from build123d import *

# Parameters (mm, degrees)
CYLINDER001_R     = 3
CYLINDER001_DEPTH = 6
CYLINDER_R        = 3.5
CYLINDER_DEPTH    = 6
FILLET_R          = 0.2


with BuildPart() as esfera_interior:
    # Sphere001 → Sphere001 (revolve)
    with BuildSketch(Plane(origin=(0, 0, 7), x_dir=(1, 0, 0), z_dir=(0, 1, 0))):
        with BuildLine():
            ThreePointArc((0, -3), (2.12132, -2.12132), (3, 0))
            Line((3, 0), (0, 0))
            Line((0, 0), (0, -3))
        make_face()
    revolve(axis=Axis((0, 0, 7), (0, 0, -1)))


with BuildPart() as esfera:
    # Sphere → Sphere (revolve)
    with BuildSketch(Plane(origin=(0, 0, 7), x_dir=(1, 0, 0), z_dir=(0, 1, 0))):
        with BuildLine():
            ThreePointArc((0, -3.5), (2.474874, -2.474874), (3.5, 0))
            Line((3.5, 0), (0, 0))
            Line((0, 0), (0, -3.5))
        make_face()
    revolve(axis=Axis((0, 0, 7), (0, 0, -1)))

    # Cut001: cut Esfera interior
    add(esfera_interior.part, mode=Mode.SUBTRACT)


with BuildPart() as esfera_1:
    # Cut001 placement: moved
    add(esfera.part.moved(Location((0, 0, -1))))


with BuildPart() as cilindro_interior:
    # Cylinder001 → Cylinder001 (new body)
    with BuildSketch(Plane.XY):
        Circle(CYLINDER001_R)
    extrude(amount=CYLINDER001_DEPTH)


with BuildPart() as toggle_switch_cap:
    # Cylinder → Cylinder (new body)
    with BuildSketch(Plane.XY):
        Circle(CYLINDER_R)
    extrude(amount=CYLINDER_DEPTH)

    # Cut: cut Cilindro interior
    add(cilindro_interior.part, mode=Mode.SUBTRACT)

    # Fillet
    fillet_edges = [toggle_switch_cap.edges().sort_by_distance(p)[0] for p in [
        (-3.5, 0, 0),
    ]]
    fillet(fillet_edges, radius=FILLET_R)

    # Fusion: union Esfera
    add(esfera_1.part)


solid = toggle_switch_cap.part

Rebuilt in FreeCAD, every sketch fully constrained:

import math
import FreeCAD as App
import Part
import Sketcher

V = App.Vector
Q = App.Units.Quantity


def edges_at(feature, points):
    """Names of the edges that pass closest to the given points."""
    edges = feature.Shape.Edges
    near = lambda p: min(range(len(edges)), key=lambda i: edges[i].distToShape(Part.Vertex(*p))[0])
    return sorted({f"Edge{near(p) + 1}" for p in points})

doc = App.newDocument("Part")
body = doc.addObject("PartDesign::Body", "Body")

# Sketch on XZ plane
sketch1 = body.newObject("Sketcher::SketchObject", "Sketch")
sketch1.AttachmentSupport = (doc.getObject("XZ_Plane"), [""])
sketch1.MapMode = "FlatFace"
sketch1.addGeometry(Part.ArcOfCircle(Part.Circle(V(0, 7, 0), V(0, 0, 1), 3), math.radians(0), math.radians(90)), False)
sketch1.addGeometry(Part.LineSegment(V(3, 7, 0), V(0, 7, 0)), False)
sketch1.addGeometry(Part.LineSegment(V(0, 7, 0), V(0, 10, 0)), False)
sketch1.addConstraint(Sketcher.Constraint("Coincident", 0, 1, 1, 1))
sketch1.addConstraint(Sketcher.Constraint("Coincident", 1, 2, 2, 1))
sketch1.addConstraint(Sketcher.Constraint("Coincident", 2, 2, 0, 2))
sketch1.addConstraint(Sketcher.Constraint("Horizontal", 1))
sketch1.addConstraint(Sketcher.Constraint("Vertical", 2))
sketch1.addConstraint(Sketcher.Constraint("Coincident", 1, 2, 0, 3))
sketch1.addConstraint(Sketcher.Constraint("PointOnObject", 0, 3, -2))
sketch1.addConstraint(Sketcher.Constraint("Radius", 0, Q("3.000001 mm")))
sketch1.addConstraint(Sketcher.Constraint("DistanceY", -1, 1, 0, 3, Q("6.999999 mm")))
revolution = body.newObject("PartDesign::Revolution", "Revolution")
revolution.Profile = sketch1
revolution.ReferenceAxis = (sketch1, ["V_Axis"])
revolution.Angle = 360
body2 = doc.addObject("PartDesign::Body", "Body001")

# Sketch on XZ plane
sketch2 = body2.newObject("Sketcher::SketchObject", "Sketch001")
sketch2.AttachmentSupport = (doc.getObject("XZ_Plane001"), [""])
sketch2.MapMode = "FlatFace"
sketch2.addGeometry(Part.ArcOfCircle(Part.Circle(V(0, 7, 0), V(0, 0, 1), 3.5), math.radians(0), math.radians(90)), False)
sketch2.addGeometry(Part.LineSegment(V(3.5, 7, 0), V(0, 7, 0)), False)
sketch2.addGeometry(Part.LineSegment(V(0, 7, 0), V(0, 10.5, 0)), False)
sketch2.addConstraint(Sketcher.Constraint("Coincident", 0, 1, 1, 1))
sketch2.addConstraint(Sketcher.Constraint("Coincident", 1, 2, 2, 1))
sketch2.addConstraint(Sketcher.Constraint("Coincident", 2, 2, 0, 2))
sketch2.addConstraint(Sketcher.Constraint("Horizontal", 1))
sketch2.addConstraint(Sketcher.Constraint("Vertical", 2))
sketch2.addConstraint(Sketcher.Constraint("Coincident", 1, 2, 0, 3))
sketch2.addConstraint(Sketcher.Constraint("PointOnObject", 0, 3, -2))
sketch2.addConstraint(Sketcher.Constraint("Radius", 0, Q("3.499999 mm")))
sketch2.addConstraint(Sketcher.Constraint("DistanceY", -1, 1, 0, 3, Q("7.000001 mm")))
revolution2 = body2.newObject("PartDesign::Revolution", "Revolution001")
revolution2.Profile = sketch2
revolution2.ReferenceAxis = (sketch2, ["V_Axis"])
revolution2.Angle = 360
doc.recompute()

boolean = body2.newObject("PartDesign::Boolean", "Boolean")
boolean.Type = "Cut"
boolean.addObjects([body])
body3 = doc.addObject("PartDesign::Body", "Body002")
doc.recompute()

body2.Placement = App.Placement(V(0, 0, -1), App.Rotation(V(0, 0, 1), 0))
boolean2 = body3.newObject("PartDesign::Boolean", "Boolean001")
boolean2.Type = "Fuse"
boolean2.addObjects([body2])
body4 = doc.addObject("PartDesign::Body", "Body003")

# Sketch on XY plane
sketch3 = body4.newObject("Sketcher::SketchObject", "Sketch002")
sketch3.AttachmentSupport = (doc.getObject("XY_Plane003"), [""])
sketch3.MapMode = "FlatFace"
sketch3.addGeometry(Part.Circle(V(0, 0, 0), V(0, 0, 1), 3), False)
sketch3.addConstraint(Sketcher.Constraint("Coincident", 0, 3, -1, 1))
sketch3.addConstraint(Sketcher.Constraint("Diameter", 0, Q("6 mm")))
pad1 = body4.newObject("PartDesign::Pad", "Pad")
pad1.Profile = sketch3
pad1.Length = 6
body5 = doc.addObject("PartDesign::Body", "Body004")

# Sketch on XY plane
sketch4 = body5.newObject("Sketcher::SketchObject", "Sketch003")
sketch4.AttachmentSupport = (doc.getObject("XY_Plane004"), [""])
sketch4.MapMode = "FlatFace"
sketch4.addGeometry(Part.Circle(V(0, 0, 0), V(0, 0, 1), 3.5), False)
sketch4.addConstraint(Sketcher.Constraint("Coincident", 0, 3, -1, 1))
sketch4.addConstraint(Sketcher.Constraint("Diameter", 0, Q("7 mm")))
pad2 = body5.newObject("PartDesign::Pad", "Pad001")
pad2.Profile = sketch4
pad2.Length = 6
doc.recompute()

boolean3 = body5.newObject("PartDesign::Boolean", "Boolean002")
boolean3.Type = "Cut"
boolean3.addObjects([body4])
doc.recompute()

fillet = body5.newObject("PartDesign::Fillet", "Fillet")
fillet.Base = (boolean3, edges_at(boolean3, [(-3.5, 0, 0)]))
fillet.Radius = 0.2
doc.recompute()

boolean4 = body5.newObject("PartDesign::Boolean", "Boolean003")
boolean4.Type = "Fuse"
boolean4.addObjects([body3])

doc.recompute()
